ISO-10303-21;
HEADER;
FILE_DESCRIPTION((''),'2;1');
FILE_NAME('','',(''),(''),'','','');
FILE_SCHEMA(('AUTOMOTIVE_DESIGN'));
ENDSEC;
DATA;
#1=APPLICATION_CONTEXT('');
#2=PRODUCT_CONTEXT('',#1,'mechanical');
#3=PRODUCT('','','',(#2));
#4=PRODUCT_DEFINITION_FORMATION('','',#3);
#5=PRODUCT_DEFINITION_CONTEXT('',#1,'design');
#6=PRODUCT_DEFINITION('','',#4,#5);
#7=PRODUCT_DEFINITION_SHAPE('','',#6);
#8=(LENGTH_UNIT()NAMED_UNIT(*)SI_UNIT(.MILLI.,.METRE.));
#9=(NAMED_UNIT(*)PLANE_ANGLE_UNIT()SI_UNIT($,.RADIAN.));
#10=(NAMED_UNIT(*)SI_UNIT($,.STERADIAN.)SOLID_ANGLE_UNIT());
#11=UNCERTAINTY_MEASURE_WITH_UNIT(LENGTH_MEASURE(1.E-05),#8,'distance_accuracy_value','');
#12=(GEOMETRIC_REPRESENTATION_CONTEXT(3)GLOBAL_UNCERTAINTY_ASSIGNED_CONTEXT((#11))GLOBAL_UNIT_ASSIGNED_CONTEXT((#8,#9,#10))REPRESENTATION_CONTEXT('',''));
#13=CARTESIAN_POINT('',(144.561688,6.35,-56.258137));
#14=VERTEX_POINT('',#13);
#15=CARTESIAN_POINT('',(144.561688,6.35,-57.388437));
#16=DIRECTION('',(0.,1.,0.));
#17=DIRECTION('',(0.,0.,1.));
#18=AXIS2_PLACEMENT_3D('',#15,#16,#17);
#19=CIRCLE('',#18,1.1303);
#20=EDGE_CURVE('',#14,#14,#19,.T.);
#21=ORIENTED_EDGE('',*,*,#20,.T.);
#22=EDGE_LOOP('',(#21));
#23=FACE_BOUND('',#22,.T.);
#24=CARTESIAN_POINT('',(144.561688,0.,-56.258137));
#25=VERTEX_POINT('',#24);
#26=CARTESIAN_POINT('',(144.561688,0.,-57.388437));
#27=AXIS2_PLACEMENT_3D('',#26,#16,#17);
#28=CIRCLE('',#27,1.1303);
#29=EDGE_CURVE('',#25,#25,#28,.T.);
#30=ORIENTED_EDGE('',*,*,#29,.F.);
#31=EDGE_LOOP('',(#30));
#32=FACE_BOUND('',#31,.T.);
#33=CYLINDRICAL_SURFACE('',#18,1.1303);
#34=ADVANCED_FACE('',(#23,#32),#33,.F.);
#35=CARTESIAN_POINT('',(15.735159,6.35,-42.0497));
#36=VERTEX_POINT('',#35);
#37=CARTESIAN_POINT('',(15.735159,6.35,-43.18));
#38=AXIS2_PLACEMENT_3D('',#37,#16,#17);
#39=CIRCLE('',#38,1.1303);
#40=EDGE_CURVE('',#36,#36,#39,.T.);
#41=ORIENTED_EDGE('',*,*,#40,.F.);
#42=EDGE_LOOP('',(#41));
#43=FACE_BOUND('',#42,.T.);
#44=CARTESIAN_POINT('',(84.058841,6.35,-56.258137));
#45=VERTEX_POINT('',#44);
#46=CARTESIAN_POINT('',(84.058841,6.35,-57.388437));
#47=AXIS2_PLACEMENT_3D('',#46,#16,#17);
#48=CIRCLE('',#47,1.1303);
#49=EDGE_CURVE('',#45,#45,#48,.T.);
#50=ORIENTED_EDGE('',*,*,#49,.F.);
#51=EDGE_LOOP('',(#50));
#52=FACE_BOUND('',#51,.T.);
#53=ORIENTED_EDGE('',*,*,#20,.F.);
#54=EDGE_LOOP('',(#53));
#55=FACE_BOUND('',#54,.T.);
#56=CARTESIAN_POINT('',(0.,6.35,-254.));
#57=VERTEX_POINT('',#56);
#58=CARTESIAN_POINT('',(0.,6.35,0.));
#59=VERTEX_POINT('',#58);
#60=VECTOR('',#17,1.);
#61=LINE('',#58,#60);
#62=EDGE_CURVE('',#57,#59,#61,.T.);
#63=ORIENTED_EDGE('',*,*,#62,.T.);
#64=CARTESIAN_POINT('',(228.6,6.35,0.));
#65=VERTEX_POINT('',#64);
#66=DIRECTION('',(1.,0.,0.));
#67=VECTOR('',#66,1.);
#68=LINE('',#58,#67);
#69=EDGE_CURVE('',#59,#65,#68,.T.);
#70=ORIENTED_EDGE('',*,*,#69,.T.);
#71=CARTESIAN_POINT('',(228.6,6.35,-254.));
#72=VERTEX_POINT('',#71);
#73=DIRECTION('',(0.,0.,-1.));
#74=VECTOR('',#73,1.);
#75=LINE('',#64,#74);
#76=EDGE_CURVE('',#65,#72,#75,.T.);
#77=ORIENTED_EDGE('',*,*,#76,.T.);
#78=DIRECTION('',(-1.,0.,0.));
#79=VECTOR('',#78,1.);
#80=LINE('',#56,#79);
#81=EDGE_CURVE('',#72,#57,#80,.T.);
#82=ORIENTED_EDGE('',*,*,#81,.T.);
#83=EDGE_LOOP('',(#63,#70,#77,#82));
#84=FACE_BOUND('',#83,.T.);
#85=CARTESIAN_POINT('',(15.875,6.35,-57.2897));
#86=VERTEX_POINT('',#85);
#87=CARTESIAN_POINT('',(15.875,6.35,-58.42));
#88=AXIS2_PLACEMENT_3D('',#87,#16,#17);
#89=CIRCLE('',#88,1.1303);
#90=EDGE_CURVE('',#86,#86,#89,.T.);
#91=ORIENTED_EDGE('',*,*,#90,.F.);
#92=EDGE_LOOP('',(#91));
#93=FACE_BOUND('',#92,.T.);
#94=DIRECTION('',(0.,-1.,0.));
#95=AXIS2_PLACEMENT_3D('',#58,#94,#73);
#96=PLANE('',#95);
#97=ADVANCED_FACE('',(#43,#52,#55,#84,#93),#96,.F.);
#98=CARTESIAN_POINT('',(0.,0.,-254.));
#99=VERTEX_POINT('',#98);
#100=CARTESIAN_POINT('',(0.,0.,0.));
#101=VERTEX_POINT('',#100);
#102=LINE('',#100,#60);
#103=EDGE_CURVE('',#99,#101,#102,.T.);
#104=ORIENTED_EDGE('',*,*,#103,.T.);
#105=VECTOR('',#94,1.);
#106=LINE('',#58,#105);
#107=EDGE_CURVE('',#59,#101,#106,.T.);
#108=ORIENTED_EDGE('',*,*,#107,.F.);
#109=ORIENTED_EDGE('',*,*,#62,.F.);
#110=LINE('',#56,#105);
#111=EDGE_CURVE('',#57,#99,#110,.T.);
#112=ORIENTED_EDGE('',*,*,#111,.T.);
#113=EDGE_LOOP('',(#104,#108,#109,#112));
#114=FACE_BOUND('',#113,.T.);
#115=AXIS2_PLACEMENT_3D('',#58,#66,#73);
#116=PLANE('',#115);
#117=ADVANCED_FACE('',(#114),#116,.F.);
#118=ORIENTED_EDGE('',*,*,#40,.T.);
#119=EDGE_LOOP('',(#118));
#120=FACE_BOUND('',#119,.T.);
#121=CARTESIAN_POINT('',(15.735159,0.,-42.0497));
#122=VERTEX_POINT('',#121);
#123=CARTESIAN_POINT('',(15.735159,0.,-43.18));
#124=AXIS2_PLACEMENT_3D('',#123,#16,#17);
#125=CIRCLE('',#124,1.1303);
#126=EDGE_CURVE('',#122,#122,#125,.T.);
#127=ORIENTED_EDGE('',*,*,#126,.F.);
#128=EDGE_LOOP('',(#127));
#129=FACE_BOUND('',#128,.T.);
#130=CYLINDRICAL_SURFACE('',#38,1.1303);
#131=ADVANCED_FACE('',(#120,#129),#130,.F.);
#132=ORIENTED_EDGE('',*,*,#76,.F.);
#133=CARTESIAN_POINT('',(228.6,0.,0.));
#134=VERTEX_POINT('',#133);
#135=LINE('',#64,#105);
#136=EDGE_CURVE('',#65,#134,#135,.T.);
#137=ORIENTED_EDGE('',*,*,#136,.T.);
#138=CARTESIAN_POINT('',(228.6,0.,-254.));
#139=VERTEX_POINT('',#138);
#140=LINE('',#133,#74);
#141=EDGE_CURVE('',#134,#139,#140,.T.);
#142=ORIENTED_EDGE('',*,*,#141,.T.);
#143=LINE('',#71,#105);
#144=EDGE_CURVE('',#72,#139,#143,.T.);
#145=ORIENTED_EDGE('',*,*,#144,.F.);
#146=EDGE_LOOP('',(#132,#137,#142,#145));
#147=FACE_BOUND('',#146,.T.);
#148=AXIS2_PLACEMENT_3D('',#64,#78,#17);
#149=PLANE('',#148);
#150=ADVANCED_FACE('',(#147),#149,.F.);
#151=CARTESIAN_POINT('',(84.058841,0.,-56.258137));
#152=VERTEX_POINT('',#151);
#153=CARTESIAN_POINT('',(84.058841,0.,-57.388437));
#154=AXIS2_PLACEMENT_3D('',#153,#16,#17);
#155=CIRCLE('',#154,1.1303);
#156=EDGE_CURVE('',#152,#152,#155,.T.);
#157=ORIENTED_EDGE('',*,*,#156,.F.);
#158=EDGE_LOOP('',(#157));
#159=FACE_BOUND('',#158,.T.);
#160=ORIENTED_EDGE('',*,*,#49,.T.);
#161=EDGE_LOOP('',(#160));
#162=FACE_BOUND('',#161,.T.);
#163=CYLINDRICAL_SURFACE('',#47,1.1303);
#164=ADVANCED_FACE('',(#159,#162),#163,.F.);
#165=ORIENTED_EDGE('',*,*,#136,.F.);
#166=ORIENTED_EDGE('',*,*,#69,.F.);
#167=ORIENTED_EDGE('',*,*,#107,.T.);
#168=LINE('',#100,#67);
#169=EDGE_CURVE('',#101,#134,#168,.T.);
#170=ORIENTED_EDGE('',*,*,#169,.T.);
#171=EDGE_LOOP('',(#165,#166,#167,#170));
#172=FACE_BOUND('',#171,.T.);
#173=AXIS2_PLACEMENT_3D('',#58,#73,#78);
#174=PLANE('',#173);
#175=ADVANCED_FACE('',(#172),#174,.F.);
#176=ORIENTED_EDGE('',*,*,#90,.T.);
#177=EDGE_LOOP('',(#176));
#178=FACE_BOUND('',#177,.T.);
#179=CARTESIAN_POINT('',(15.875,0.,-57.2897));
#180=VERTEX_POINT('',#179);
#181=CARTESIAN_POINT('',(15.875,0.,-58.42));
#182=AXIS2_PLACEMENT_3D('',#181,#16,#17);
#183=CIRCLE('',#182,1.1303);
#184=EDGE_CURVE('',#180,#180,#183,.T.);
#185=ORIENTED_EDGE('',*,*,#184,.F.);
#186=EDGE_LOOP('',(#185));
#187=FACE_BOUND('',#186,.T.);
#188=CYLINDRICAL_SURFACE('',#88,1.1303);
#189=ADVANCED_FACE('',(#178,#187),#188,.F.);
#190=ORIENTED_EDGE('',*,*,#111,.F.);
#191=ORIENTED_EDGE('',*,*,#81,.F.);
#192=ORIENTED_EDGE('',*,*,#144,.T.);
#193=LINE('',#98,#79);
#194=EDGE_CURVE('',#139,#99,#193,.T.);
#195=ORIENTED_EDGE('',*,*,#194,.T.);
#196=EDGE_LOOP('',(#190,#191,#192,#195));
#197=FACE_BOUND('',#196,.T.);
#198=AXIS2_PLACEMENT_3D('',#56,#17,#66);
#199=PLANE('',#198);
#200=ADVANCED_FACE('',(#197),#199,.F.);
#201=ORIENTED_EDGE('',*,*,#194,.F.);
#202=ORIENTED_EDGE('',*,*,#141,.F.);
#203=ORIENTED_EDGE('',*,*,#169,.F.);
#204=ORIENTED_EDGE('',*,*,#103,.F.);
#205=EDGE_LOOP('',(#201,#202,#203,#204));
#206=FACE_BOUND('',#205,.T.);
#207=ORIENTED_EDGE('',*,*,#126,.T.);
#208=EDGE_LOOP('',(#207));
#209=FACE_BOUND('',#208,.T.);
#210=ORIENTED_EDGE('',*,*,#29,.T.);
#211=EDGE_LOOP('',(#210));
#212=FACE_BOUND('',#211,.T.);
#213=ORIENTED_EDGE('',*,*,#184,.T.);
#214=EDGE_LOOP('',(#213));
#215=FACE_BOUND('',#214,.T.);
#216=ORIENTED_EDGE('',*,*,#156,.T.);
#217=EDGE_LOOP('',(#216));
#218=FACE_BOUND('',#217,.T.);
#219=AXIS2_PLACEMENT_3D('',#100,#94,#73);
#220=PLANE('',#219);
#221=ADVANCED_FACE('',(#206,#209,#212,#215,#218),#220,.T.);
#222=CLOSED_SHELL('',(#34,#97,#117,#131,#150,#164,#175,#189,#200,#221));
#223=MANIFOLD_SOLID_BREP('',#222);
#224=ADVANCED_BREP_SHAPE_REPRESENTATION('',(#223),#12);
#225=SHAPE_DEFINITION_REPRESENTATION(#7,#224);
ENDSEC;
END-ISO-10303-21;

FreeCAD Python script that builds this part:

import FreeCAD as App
import Part
import Sketcher
from FreeCAD import Vector
Q = App.Units.Quantity


def add_polygon(sketch, points):
    """Adds a closed chain of lines whose ends are joined by coincident constraints."""
    first, n = sketch.GeometryCount, len(points)
    for a, b in zip(points, points[1:] + points[:1]):
        sketch.addGeometry(Part.LineSegment(App.Vector(*a, 0), App.Vector(*b, 0)), False)
    for i in range(n):
        sketch.addConstraint(Sketcher.Constraint("Coincident", first + i, 2, first + (i + 1) % n, 1))

doc = App.newDocument("Part")
body = doc.addObject("PartDesign::Body", "Body")

# Sketch on XZ plane
sketch1 = body.newObject("Sketcher::SketchObject", "Sketch")
sketch1.AttachmentSupport = (doc.getObject("XZ_Plane"), [""])
sketch1.MapMode = "FlatFace"
add_polygon(sketch1, [(0, -254), (0, 0), (229, 0), (229, -254)])  # lines 0-3
sketch1.addConstraint([
    Sketcher.Constraint("Vertical", 0),
    Sketcher.Constraint("Horizontal", 1),
    Sketcher.Constraint("Vertical", 2),
    Sketcher.Constraint("Horizontal", 3),
    Sketcher.Constraint("Coincident", 0, 2, -1, 1),
    Sketcher.Constraint("DistanceX", 1, 1, 1, 2, Q("9 in")),
    Sketcher.Constraint("DistanceY", 0, 1, 0, 2, Q("10 in")),
])
pad1 = body.newObject("PartDesign::Pad", "Pad")
pad1.Profile = sketch1
pad1.Length = Q("0.25 in")
pad1.Reversed = True

# Sketch on XZ plane
sketch2 = body.newObject("Sketcher::SketchObject", "Sketch001")
sketch2.AttachmentSupport = (doc.getObject("XZ_Plane"), [""])
sketch2.MapMode = "FlatFace"
sketch2.AttachmentOffset = App.Placement(Vector(0, 0, -0.25 * 25.4), App.Rotation())
sketch2.addGeometry([
    Part.Circle(Vector(15.7, -43.2, 0), Vector(0, 0, 1), 1.1),
    Part.Circle(Vector(15.9, -58.4, 0), Vector(0, 0, 1), 1.1),
    Part.Circle(Vector(84.1, -57.4, 0), Vector(0, 0, 1), 1.1),
    Part.Circle(Vector(144.6, -57.4, 0), Vector(0, 0, 1), 1.1),
], False)
sketch2.addConstraint([
    Sketcher.Constraint("Equal", 0, 1),
    Sketcher.Constraint("Equal", 1, 2),
    Sketcher.Constraint("Equal", 2, 3),
    Sketcher.Constraint("Horizontal", 2, 3, 3, 3),
    Sketcher.Constraint("Diameter", 0, Q("0.089 in")),
    Sketcher.Constraint("DistanceY", 0, 3, -1, 1, Q("1.7 in")),
    Sketcher.Constraint("DistanceY", 1, 3, -1, 1, Q("2.3 in")),
    Sketcher.Constraint("DistanceX", -1, 1, 1, 3, Q("0.625 in")),
    Sketcher.Constraint("DistanceX", -1, 1, 0, 3, Q("15.735159 mm")),
    Sketcher.Constraint("DistanceX", -1, 1, 2, 3, Q("84.058841 mm")),
    Sketcher.Constraint("DistanceX", -1, 1, 3, 3, Q("144.561688 mm")),
    Sketcher.Constraint("DistanceY", 2, 3, -1, 1, Q("57.388437 mm")),
])
doc.recompute()
hole = body.newObject("PartDesign::Hole", "Hole")
hole.Profile = sketch2
hole.ThreadType = "None"
hole.Diameter = Q("0.089 in")
hole.DepthType = "ThroughAll"
hole.Reversed = True

doc.recompute()
